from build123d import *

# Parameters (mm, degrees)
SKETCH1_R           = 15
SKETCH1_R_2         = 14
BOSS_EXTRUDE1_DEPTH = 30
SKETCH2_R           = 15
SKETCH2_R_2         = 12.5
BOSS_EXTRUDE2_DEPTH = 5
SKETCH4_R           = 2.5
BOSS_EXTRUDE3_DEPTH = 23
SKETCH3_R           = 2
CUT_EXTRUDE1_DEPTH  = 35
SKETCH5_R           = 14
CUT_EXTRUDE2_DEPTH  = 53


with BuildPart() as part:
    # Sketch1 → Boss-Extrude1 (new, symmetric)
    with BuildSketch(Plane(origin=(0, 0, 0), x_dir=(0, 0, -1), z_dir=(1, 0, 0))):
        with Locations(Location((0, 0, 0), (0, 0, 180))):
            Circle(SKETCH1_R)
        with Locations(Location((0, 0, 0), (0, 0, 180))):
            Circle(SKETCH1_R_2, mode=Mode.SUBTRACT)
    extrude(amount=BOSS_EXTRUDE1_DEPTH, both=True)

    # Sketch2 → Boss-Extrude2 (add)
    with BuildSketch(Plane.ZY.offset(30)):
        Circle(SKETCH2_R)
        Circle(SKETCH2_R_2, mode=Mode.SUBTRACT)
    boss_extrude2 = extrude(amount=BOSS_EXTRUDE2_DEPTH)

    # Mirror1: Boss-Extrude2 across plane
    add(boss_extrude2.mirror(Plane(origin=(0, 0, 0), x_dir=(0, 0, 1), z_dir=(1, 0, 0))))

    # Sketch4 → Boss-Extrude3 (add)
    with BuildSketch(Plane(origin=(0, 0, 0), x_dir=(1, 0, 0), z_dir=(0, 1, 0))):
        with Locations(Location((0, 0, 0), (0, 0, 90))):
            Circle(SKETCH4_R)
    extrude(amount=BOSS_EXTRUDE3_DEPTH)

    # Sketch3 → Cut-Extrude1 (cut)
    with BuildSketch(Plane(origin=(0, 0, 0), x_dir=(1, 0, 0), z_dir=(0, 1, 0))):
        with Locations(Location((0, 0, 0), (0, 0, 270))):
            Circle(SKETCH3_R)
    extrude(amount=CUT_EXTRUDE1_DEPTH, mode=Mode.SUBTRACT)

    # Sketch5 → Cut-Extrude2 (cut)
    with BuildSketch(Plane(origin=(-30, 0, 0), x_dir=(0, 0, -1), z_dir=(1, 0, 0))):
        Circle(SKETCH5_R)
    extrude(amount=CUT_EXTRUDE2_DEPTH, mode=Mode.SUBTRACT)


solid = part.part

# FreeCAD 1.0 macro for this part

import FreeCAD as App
import Part
import Sketcher

doc = App.newDocument("Part")
body = doc.addObject("PartDesign::Body", "Body")

# Sketch on YZ plane
sketch1 = body.newObject("Sketcher::SketchObject", "Sketch")
sketch1.AttachmentSupport = (doc.getObject("YZ_Plane"), [""])
sketch1.MapMode = "FlatFace"
sketch1.addGeometry([
    Part.Circle(App.Vector(0, 0, 0), App.Vector(0, 0, 1), 15),
    Part.Circle(App.Vector(0, 0, 0), App.Vector(0, 0, 1), 14),
], False)
sketch1.addConstraint([
    Sketcher.Constraint("Coincident", 0, 3, -1, 1),
    Sketcher.Constraint("Coincident", 1, 3, -1, 1),
    Sketcher.Constraint("Diameter", 0, 30.0),
    Sketcher.Constraint("Diameter", 1, 28.0),
])
pad1 = body.newObject("PartDesign::Pad", "Pad")
pad1.Profile = sketch1
pad1.Length = 60
pad1.Midplane = True

# Sketch on YZ plane
sketch2 = body.newObject("Sketcher::SketchObject", "Sketch001")
sketch2.AttachmentSupport = (doc.getObject("YZ_Plane"), [""])
sketch2.MapMode = "FlatFace"
sketch2.AttachmentOffset = App.Placement(App.Vector(0, 0, -30), App.Rotation())
sketch2.addGeometry([
    Part.Circle(App.Vector(0, 0, 0), App.Vector(0, 0, 1), 15),
    Part.Circle(App.Vector(0, 0, 0), App.Vector(0, 0, 1), 12),
], False)
sketch2.addConstraint([
    Sketcher.Constraint("Coincident", 0, 3, -1, 1),
    Sketcher.Constraint("Coincident", 1, 3, -1, 1),
    Sketcher.Constraint("Diameter", 0, 30.0),
    Sketcher.Constraint("Diameter", 1, 25.0),
])
pad2 = body.newObject("PartDesign::Pad", "Pad001")
pad2.Profile = sketch2
pad2.Length = 5
pad2.Reversed = True
doc.recompute()

mirrored = body.newObject("PartDesign::Mirrored", "Mirrored")
mirrored.Originals = [pad2]
mirrored.MirrorPlane = (doc.getObject("YZ_Plane"), [""])
body.Tip = mirrored

# Sketch on XZ plane
sketch3 = body.newObject("Sketcher::SketchObject", "Sketch002")
sketch3.AttachmentSupport = (doc.getObject("XZ_Plane"), [""])
sketch3.MapMode = "FlatFace"
sketch3.addGeometry(Part.Circle(App.Vector(0, 0, 0), App.Vector(0, 0, 1), 2.5), False)
sketch3.addConstraint([
    Sketcher.Constraint("Coincident", 0, 3, -1, 1),
    Sketcher.Constraint("Diameter", 0, 5.0),
])
pad3 = body.newObject("PartDesign::Pad", "Pad002")
pad3.Profile = sketch3
pad3.Length = 23
pad3.Reversed = True

# Sketch on XZ plane
sketch4 = body.newObject("Sketcher::SketchObject", "Sketch003")
sketch4.AttachmentSupport = (doc.getObject("XZ_Plane"), [""])
sketch4.MapMode = "FlatFace"
sketch4.addGeometry(Part.Circle(App.Vector(0, 0, 0), App.Vector(0, 0, 1), 2), False)
sketch4.addConstraint([
    Sketcher.Constraint("Coincident", 0, 3, -1, 1),
    Sketcher.Constraint("Diameter", 0, 4.0),
])
pocket1 = body.newObject("PartDesign::Pocket", "Pocket")
pocket1.Profile = sketch4
pocket1.Length = 35

# Sketch on YZ plane
sketch5 = body.newObject("Sketcher::SketchObject", "Sketch004")
sketch5.AttachmentSupport = (doc.getObject("YZ_Plane"), [""])
sketch5.MapMode = "FlatFace"
sketch5.AttachmentOffset = App.Placement(App.Vector(0, 0, -30), App.Rotation())
sketch5.addGeometry(Part.Circle(App.Vector(0, 0, 0), App.Vector(0, 0, 1), 14), False)
sketch5.addConstraint([
    Sketcher.Constraint("Coincident", 0, 3, -1, 1),
    Sketcher.Constraint("Diameter", 0, 28.0),
])
pocket2 = body.newObject("PartDesign::Pocket", "Pocket001")
pocket2.Profile = sketch5
pocket2.Length = 53
pocket2.Reversed = True

doc.recompute()
